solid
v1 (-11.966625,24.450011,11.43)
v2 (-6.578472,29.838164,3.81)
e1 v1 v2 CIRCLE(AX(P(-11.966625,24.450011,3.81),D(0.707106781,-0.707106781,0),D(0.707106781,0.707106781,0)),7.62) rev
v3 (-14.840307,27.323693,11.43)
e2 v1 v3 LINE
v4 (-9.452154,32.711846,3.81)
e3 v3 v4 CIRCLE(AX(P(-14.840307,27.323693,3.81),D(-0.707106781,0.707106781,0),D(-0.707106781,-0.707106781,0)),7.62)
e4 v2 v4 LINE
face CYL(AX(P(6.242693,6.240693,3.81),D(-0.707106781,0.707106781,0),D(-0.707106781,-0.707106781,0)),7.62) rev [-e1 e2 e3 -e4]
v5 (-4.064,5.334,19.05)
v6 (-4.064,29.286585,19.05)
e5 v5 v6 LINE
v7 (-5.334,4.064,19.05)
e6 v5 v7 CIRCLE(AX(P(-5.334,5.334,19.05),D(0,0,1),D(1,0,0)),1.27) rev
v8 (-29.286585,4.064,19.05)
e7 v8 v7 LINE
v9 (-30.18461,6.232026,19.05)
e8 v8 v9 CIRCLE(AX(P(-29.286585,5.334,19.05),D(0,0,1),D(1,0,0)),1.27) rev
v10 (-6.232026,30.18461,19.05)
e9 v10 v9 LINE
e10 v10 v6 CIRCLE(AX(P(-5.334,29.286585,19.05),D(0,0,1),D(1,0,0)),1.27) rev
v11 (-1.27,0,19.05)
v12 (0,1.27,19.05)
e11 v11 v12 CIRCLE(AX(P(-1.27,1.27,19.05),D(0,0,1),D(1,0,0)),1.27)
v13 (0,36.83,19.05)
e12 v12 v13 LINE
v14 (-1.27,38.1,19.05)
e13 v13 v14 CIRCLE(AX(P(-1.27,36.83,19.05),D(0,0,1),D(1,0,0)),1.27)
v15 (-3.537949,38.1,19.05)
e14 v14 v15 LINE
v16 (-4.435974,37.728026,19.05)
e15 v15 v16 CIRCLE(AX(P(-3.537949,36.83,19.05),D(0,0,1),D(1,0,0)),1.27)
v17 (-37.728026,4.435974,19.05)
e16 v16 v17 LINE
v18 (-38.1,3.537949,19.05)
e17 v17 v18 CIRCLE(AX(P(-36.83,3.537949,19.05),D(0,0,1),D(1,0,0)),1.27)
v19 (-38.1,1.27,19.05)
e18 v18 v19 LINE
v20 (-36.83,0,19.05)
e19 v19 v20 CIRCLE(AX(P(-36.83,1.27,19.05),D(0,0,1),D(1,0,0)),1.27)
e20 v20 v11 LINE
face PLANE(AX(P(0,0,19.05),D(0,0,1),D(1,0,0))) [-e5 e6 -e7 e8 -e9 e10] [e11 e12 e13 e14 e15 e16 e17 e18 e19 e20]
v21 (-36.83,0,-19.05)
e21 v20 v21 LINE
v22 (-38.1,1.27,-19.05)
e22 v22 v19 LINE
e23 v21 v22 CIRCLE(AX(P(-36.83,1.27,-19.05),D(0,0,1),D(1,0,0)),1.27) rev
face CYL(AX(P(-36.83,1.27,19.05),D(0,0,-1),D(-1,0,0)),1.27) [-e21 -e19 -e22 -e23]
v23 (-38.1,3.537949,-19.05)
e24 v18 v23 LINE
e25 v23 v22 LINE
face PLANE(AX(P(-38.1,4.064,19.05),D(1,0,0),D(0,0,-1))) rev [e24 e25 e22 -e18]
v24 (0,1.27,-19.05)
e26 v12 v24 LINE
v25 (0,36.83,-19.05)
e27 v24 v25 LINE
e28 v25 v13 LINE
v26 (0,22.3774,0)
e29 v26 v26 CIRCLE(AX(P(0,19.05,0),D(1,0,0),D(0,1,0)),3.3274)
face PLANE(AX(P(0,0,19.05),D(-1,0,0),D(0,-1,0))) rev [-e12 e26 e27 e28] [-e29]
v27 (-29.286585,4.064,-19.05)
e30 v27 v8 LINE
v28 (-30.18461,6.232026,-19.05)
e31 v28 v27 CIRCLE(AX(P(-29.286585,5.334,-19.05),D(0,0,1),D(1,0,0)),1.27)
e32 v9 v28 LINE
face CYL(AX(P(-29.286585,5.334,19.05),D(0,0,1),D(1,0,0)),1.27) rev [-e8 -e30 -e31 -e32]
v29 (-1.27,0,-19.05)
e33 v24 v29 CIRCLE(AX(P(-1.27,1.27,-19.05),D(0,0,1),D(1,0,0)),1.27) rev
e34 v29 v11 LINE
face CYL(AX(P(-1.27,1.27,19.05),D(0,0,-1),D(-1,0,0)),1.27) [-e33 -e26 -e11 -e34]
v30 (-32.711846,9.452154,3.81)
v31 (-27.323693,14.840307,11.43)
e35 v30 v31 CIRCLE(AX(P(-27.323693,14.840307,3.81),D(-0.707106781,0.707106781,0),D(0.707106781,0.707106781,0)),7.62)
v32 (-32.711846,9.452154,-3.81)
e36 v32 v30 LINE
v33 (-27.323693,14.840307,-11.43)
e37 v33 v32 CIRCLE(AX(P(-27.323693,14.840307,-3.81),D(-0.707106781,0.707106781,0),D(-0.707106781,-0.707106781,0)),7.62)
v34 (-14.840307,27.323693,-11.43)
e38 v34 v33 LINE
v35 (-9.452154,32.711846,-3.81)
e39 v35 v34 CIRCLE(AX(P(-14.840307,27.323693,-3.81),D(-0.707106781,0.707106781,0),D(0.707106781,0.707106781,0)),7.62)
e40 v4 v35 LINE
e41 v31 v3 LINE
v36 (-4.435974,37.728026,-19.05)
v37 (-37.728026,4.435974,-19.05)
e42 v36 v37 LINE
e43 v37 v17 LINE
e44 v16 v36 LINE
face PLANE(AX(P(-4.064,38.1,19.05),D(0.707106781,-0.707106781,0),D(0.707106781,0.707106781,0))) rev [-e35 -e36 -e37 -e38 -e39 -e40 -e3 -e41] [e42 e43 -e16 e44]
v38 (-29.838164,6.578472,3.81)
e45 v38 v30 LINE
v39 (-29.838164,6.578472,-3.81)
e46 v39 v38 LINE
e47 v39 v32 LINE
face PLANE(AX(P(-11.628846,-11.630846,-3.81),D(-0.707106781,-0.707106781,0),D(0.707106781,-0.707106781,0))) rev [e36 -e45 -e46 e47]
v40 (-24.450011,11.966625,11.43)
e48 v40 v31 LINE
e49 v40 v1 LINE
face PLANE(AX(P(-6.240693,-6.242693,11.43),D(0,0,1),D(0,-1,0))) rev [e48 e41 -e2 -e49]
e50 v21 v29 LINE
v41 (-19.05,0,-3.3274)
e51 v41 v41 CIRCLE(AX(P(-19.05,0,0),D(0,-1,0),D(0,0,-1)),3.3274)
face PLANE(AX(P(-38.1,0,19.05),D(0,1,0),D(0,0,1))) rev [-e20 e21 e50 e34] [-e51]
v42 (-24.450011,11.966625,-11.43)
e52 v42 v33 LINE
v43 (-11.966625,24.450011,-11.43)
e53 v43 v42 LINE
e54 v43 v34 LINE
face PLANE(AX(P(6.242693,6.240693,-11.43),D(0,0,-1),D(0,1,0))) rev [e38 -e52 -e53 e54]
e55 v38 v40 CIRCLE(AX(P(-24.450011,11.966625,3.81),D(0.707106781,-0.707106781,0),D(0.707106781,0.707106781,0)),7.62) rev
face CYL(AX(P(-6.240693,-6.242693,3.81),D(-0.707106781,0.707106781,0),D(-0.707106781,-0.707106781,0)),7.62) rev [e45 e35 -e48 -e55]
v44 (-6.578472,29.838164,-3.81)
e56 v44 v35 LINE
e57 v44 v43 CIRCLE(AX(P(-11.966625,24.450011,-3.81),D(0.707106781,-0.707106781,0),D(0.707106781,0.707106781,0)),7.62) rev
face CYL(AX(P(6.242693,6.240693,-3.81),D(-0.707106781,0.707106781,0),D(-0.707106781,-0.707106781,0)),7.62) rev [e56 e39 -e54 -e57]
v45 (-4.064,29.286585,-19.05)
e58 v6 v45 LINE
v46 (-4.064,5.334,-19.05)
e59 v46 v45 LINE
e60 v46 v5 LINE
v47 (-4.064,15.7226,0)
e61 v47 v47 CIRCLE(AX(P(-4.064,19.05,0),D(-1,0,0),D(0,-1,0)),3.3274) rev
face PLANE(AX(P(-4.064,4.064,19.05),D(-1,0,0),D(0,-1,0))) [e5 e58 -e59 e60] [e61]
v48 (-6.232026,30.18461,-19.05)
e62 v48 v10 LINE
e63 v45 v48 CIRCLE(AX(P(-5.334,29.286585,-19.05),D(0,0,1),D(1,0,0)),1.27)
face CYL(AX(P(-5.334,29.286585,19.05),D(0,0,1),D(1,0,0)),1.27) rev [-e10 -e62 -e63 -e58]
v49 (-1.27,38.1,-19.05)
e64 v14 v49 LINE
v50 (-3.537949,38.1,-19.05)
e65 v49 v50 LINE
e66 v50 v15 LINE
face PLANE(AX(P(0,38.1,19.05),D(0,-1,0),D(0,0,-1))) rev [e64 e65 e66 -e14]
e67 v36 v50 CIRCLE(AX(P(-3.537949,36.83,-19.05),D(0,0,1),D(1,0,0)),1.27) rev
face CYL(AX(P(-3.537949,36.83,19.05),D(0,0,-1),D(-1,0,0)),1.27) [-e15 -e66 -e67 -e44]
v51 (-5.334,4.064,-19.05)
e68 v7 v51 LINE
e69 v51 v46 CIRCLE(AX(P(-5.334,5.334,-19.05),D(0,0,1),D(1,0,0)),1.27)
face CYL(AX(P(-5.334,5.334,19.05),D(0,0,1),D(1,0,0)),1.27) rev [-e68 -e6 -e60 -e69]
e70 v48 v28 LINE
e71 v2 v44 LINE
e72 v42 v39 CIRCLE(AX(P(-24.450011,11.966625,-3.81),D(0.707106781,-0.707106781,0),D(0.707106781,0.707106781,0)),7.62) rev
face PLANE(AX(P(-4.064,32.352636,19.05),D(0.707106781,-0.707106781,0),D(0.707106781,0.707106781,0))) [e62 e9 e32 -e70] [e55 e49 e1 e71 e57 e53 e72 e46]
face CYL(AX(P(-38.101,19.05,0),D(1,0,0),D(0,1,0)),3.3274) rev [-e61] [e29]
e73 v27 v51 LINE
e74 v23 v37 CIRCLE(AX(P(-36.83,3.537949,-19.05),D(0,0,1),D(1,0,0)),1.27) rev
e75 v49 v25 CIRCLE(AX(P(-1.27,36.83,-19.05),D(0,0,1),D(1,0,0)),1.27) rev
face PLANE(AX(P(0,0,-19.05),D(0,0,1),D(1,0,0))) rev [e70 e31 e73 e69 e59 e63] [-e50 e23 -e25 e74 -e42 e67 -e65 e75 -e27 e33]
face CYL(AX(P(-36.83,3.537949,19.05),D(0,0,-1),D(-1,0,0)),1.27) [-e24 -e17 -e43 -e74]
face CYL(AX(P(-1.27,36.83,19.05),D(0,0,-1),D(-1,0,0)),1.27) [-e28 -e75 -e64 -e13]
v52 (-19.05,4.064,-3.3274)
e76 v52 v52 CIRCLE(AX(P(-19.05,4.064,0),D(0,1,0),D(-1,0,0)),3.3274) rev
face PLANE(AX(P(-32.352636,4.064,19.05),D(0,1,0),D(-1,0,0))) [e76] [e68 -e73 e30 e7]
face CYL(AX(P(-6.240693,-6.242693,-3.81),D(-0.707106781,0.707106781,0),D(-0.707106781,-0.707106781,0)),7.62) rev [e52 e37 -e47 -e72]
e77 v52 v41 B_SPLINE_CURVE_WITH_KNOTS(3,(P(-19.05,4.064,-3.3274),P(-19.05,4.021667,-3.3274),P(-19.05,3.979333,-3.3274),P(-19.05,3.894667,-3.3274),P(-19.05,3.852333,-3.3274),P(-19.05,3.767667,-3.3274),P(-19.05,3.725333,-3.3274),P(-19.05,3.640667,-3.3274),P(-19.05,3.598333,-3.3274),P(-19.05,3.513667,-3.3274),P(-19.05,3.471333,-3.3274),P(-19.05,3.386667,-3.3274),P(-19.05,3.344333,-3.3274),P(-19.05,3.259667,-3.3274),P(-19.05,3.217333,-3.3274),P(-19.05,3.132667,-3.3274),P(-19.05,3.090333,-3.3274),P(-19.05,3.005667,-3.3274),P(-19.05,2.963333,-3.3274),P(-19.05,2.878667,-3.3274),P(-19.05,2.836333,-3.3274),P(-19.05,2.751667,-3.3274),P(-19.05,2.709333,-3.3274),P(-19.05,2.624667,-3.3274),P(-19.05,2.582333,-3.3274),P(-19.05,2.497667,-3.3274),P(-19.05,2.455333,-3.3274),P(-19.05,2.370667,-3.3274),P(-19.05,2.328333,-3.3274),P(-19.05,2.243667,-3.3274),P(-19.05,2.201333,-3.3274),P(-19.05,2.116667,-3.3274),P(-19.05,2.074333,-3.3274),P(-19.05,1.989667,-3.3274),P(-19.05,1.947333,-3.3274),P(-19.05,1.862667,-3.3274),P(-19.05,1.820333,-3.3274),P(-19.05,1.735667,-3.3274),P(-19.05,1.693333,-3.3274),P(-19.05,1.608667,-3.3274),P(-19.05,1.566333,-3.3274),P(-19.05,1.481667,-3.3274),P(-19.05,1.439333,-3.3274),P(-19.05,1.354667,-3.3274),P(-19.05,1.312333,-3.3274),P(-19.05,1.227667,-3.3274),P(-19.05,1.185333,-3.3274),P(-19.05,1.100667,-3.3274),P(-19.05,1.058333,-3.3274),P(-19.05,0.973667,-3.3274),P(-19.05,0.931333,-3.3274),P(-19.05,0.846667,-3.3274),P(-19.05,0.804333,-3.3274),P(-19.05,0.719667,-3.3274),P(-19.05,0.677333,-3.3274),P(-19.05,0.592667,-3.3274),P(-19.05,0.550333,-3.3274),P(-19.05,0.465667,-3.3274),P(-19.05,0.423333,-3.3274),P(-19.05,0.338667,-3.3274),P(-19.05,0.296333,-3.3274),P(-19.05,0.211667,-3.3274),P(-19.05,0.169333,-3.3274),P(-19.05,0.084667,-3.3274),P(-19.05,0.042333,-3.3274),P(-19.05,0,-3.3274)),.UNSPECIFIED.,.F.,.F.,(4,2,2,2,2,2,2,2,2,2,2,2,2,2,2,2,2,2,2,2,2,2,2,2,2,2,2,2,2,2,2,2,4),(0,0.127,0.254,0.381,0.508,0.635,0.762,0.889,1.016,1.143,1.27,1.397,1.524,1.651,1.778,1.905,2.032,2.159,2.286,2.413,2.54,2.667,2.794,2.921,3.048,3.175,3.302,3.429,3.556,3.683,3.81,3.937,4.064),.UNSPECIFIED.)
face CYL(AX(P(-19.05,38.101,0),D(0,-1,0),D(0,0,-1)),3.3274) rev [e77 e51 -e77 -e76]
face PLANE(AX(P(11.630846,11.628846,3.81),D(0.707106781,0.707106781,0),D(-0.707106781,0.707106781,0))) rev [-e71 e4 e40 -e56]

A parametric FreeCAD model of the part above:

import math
import FreeCAD as App
import Part
import Sketcher
Q = App.Units.Quantity


def edges_at(feature, points):
    """Names of the edges that pass closest to the given points."""
    edges = feature.Shape.Edges
    near = lambda p: min(range(len(edges)), key=lambda i: edges[i].distToShape(Part.Vertex(*p))[0])
    return sorted({f"Edge{near(p) + 1}" for p in points})


def add_polygon(sketch, points):
    """Adds a closed chain of lines whose ends are joined by coincident constraints."""
    first, n = sketch.GeometryCount, len(points)
    for a, b in zip(points, points[1:] + points[:1]):
        sketch.addGeometry(Part.LineSegment(App.Vector(*a, 0), App.Vector(*b, 0)), False)
    for i in range(n):
        sketch.addConstraint(Sketcher.Constraint("Coincident", first + i, 2, first + (i + 1) % n, 1))

doc = App.newDocument("Part")
body = doc.addObject("PartDesign::Body", "Body")

# Sketch on XY plane
sketch1 = body.newObject("Sketcher::SketchObject", "Sketch")
sketch1.AttachmentSupport = (doc.getObject("XY_Plane"), [""])
sketch1.MapMode = "FlatFace"
add_polygon(sketch1, [(0, 0), (0, 38.1), (-4.1, 38.1), (-38.1, 4.1), (-38.1, 0)])  # lines 0-4
add_polygon(sketch1, [(-4.1, 4.1), (-32.4, 4.1), (-4.1, 32.4)])  # lines 5-7
sketch1.addConstraint(Sketcher.Constraint("Vertical", 0))
sketch1.addConstraint(Sketcher.Constraint("Horizontal", 1))
sketch1.addConstraint(Sketcher.Constraint("Vertical", 3))
sketch1.addConstraint(Sketcher.Constraint("Horizontal", 4))
sketch1.addConstraint(Sketcher.Constraint("Horizontal", 5))
sketch1.addConstraint(Sketcher.Constraint("Vertical", 7))
sketch1.addConstraint(Sketcher.Constraint("Coincident", 4, 2, -1, 1))
sketch1.addConstraint(Sketcher.Constraint("Parallel", 2, 6))
sketch1.addConstraint(Sketcher.Constraint("Horizontal", 2, 2, 5, 2))
sketch1.addConstraint(Sketcher.Constraint("Vertical", 1, 2, 6, 2))
sketch1.addConstraint(Sketcher.Constraint("Equal", 4, 0))
sketch1.addConstraint(Sketcher.Constraint("Equal", 1, 3))
sketch1.addConstraint(Sketcher.Constraint("DistanceX", 4, 1, 4, 2, Q("1.5 in")))
sketch1.addConstraint(Sketcher.Constraint("DistanceX", 1, 2, 1, 1, Q("0.16 in")))
sketch1.addConstraint(Sketcher.Constraint("DistanceX", 5, 2, 5, 1, 28.288636))
pad1 = body.newObject("PartDesign::Pad", "Pad")
pad1.Profile = sketch1
pad1.Length = Q("1.5 in")
pad1.Midplane = True

# Sketch on YZ plane
sketch2 = body.newObject("Sketcher::SketchObject", "Sketch001")
sketch2.AttachmentSupport = (doc.getObject("YZ_Plane"), [""])
sketch2.MapMode = "FlatFace"
sketch2.addGeometry(Part.Circle(App.Vector(19.1, 0, 0), App.Vector(0, 0, 1), 3.3), False)
sketch2.addConstraint(Sketcher.Constraint("PointOnObject", 0, 3, -1))
sketch2.addConstraint(Sketcher.Constraint("Diameter", 0, Q("0.262 in")))
sketch2.addConstraint(Sketcher.Constraint("DistanceX", -1, 1, 0, 3, Q("0.75 in")))
pocket1 = body.newObject("PartDesign::Pocket", "Pocket")
pocket1.Profile = sketch2
pocket1.Type = "UpToFirst"

# Sketch on XZ plane
sketch3 = body.newObject("Sketcher::SketchObject", "Sketch002")
sketch3.AttachmentSupport = (doc.getObject("XZ_Plane"), [""])
sketch3.MapMode = "FlatFace"
sketch3.addGeometry(Part.Circle(App.Vector(-19.1, 0, 0), App.Vector(0, 0, 1), 3.3), False)
sketch3.addConstraint(Sketcher.Constraint("PointOnObject", 0, 3, -1))
sketch3.addConstraint(Sketcher.Constraint("Diameter", 0, Q("0.262 in")))
sketch3.addConstraint(Sketcher.Constraint("DistanceX", 0, 3, -1, 1, Q("0.75 in")))
pocket2 = body.newObject("PartDesign::Pocket", "Pocket001")
pocket2.Profile = sketch3
pocket2.Type = "UpToFirst"

# Sketch on an angled plane
sketch4 = body.newObject("Sketcher::SketchObject", "Sketch003")
sketch4.Placement = App.Placement(App.Vector(-21.082, 21.082, 0), App.Rotation(App.Vector(0, 0, 1), App.Vector(0.707106781, 0.707106781, 0), App.Vector(-0.707106781, 0.707106781, 0), "ZXY"))
sketch4.addGeometry(Part.LineSegment(App.Vector(4, 16, 0), App.Vector(-4, 16, 0)), False)
sketch4.addGeometry(Part.ArcOfCircle(Part.Circle(App.Vector(-4, 9, 0), App.Vector(0, 0, 1), 8), math.radians(90), math.radians(180)), False)
sketch4.addGeometry(Part.LineSegment(App.Vector(-11, 9, 0), App.Vector(-11, -9, 0)), False)
sketch4.addGeometry(Part.ArcOfCircle(Part.Circle(App.Vector(-4, -9, 0), App.Vector(0, 0, 1), 8), math.radians(180), math.radians(270)), False)
sketch4.addGeometry(Part.LineSegment(App.Vector(-4, -16, 0), App.Vector(4, -16, 0)), False)
sketch4.addGeometry(Part.ArcOfCircle(Part.Circle(App.Vector(4, -9, 0), App.Vector(0, 0, 1), 8), math.radians(-90), math.radians(0)), False)
sketch4.addGeometry(Part.LineSegment(App.Vector(11, -9, 0), App.Vector(11, 9, 0)), False)
sketch4.addGeometry(Part.ArcOfCircle(Part.Circle(App.Vector(4, 9, 0), App.Vector(0, 0, 1), 8), math.radians(0), math.radians(90)), False)
sketch4.addConstraint(Sketcher.Constraint("Tangent", 0, 2, 1, 1))
sketch4.addConstraint(Sketcher.Constraint("Tangent", 1, 2, 2, 1))
sketch4.addConstraint(Sketcher.Constraint("Tangent", 2, 2, 3, 1))
sketch4.addConstraint(Sketcher.Constraint("Tangent", 3, 2, 4, 1))
sketch4.addConstraint(Sketcher.Constraint("Tangent", 4, 2, 5, 1))
sketch4.addConstraint(Sketcher.Constraint("Tangent", 5, 2, 6, 1))
sketch4.addConstraint(Sketcher.Constraint("Tangent", 6, 2, 7, 1))
sketch4.addConstraint(Sketcher.Constraint("Tangent", 7, 2, 0, 1))
sketch4.addConstraint(Sketcher.Constraint("Horizontal", 0))
sketch4.addConstraint(Sketcher.Constraint("Vertical", 2))
sketch4.addConstraint(Sketcher.Constraint("Horizontal", 4))
sketch4.addConstraint(Sketcher.Constraint("Vertical", 6))
sketch4.addConstraint(Sketcher.Constraint("Equal", 1, 3))
sketch4.addConstraint(Sketcher.Constraint("Equal", 3, 5))
sketch4.addConstraint(Sketcher.Constraint("Equal", 5, 7))
sketch4.addConstraint(Sketcher.Constraint("Symmetric", 1, 3, 5, 3, -1, 1))
sketch4.addConstraint(Sketcher.Constraint("Radius", 1, Q("0.3 in")))
sketch4.addConstraint(Sketcher.Constraint("DistanceX", 0, 2, 0, 1, Q("0.3 in")))
sketch4.addConstraint(Sketcher.Constraint("DistanceY", 2, 2, 2, 1, 17.654173))
pocket3 = body.newObject("PartDesign::Pocket", "Pocket002")
pocket3.Profile = sketch4
pocket3.Type = "UpToFirst"
doc.recompute()

fillet = body.newObject("PartDesign::Fillet", "Fillet")
fillet.Base = (pocket3, edges_at(pocket3, [
    (-4.064, 4.064, 0),
    (-4.064, 32.353, 0),
    (-32.353, 4.064, 0),
    (-38.1, 0, 0),
    (-38.1, 4.064, 0),
    (-4.064, 38.1, 0),
    (0, 38.1, 0),
    (0, 0, 0),
]))
fillet.Radius = Q("0.05 in")

doc.recompute()
